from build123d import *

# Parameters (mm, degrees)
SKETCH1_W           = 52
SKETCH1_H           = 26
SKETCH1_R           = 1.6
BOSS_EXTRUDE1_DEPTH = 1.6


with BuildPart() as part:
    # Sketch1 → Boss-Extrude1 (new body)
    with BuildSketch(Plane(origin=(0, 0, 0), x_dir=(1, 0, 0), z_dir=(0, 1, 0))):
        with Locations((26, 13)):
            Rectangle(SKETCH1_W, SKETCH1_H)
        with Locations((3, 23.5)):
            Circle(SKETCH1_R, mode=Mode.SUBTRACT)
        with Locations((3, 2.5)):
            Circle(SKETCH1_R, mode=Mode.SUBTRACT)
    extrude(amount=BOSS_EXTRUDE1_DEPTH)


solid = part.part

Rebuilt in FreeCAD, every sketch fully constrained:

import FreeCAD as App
import Part
import Sketcher
Q = App.Units.Quantity


def add_polygon(sketch, points):
    """Adds a closed chain of lines whose ends are joined by coincident constraints."""
    first, n = sketch.GeometryCount, len(points)
    for a, b in zip(points, points[1:] + points[:1]):
        sketch.addGeometry(Part.LineSegment(App.Vector(*a, 0), App.Vector(*b, 0)), False)
    for i in range(n):
        sketch.addConstraint(Sketcher.Constraint("Coincident", first + i, 2, first + (i + 1) % n, 1))

doc = App.newDocument("Part")
body = doc.addObject("PartDesign::Body", "Body")

sketch1 = body.newObject("Sketcher::SketchObject", "Sketch")
sketch1.AttachmentSupport = (doc.getObject("XZ_Plane"), [""])
sketch1.MapMode = "FlatFace"
add_polygon(sketch1, [(0, -26), (0, 0), (52, 0), (52, -26)])
sketch1.addGeometry(Part.Circle(App.Vector(3, -2.5, 0), App.Vector(0, 0, 1), 1.6), False)
sketch1.addGeometry(Part.Circle(App.Vector(3, -23.5, 0), App.Vector(0, 0, 1), 1.6), False)
sketch1.addConstraint([
    Sketcher.Constraint("Vertical", 0),
    Sketcher.Constraint("Horizontal", 1),
    Sketcher.Constraint("Vertical", 2),
    Sketcher.Constraint("Horizontal", 3),
    Sketcher.Constraint("Coincident", 0, 2, -1, 1),
    Sketcher.Constraint("Equal", 4, 5),
    Sketcher.Constraint("Vertical", 4, 3, 5, 3),
    Sketcher.Constraint("Diameter", 4, Q("3.2 mm")),
    Sketcher.Constraint("DistanceX", 1, 1, 1, 2, Q("52 mm")),
    Sketcher.Constraint("DistanceY", 0, 1, 0, 2, Q("26 mm")),
    Sketcher.Constraint("DistanceX", -1, 1, 4, 3, Q("3 mm")),
    Sketcher.Constraint("DistanceY", 5, 3, 4, 3, Q("21 mm")),
    Sketcher.Constraint("DistanceY", 4, 3, -1, 1, Q("2.5 mm")),
])
pad1 = body.newObject("PartDesign::Pad", "Pad")
pad1.Profile = sketch1
pad1.Length = 1.6
pad1.Reversed = True

doc.recompute()
